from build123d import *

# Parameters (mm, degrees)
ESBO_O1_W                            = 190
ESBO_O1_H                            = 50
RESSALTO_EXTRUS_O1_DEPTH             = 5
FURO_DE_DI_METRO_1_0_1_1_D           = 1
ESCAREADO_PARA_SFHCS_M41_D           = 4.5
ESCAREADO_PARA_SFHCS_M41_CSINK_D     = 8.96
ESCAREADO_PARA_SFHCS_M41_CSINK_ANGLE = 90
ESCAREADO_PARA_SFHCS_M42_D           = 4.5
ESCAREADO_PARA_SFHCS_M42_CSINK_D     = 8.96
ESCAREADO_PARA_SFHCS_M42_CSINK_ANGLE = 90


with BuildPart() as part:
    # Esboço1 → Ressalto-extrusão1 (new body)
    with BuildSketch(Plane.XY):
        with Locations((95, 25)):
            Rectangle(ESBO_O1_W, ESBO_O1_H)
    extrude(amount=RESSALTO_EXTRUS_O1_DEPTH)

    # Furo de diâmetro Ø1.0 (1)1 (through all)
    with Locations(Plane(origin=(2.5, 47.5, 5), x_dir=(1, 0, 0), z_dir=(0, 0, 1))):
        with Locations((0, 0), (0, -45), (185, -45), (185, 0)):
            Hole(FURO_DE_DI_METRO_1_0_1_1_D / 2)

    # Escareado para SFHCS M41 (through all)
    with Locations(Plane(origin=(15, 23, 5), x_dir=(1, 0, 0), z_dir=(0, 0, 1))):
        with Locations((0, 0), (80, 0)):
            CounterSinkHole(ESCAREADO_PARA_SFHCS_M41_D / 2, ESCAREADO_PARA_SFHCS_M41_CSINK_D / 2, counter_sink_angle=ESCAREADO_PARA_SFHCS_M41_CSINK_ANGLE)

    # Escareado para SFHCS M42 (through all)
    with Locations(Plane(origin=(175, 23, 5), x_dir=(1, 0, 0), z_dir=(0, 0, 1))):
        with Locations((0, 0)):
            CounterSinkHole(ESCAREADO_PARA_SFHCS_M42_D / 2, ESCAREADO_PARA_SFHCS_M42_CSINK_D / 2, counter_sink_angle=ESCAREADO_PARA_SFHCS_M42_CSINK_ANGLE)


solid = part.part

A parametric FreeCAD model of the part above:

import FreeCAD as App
import Part
import Sketcher
from FreeCAD import Vector
Q = App.Units.Quantity

doc = App.newDocument("Part")
params = doc.addObject("Spreadsheet::Sheet", "Params")
for row, (alias, value) in enumerate([
    ("sketch1_width", "190 mm"),
    ("sketch1_height", "50 mm"),
    ("pad1_length", "5 mm"),
    ("sketch2_diameter", "1 mm"),
    ("hole_diameter", "1 mm"),
    ("sketch3_diameter", "4.5 mm"),
    ("hole2_diameter", "4.5 mm"),
    ("hole2_csink_diameter", "8.96 mm"),
    ("sketch4_diameter", "4.5 mm"),
    ("hole3_diameter", "4.5 mm"),
    ("hole3_csink_diameter", "8.96 mm"),
], start=1):
    params.set(f"A{row}", alias)
    params.set(f"B{row}", "=" + value)
    params.setAlias(f"B{row}", alias)

body = doc.addObject("PartDesign::Body", "Body")

sketch1 = body.newObject("Sketcher::SketchObject", "Sketch")
sketch1.AttachmentSupport = (doc.getObject("XY_Plane"), [""])
sketch1.MapMode = "FlatFace"
sketch1.addGeometry([
    Part.LineSegment(Vector(0, 50, 0), Vector(0, 0, 0)),
    Part.LineSegment(Vector(0, 0, 0), Vector(190, 0, 0)),
    Part.LineSegment(Vector(190, 0, 0), Vector(190, 50, 0)),
    Part.LineSegment(Vector(190, 50, 0), Vector(0, 50, 0)),
], False)
sketch1.addConstraint([
    Sketcher.Constraint("Coincident", 0, 2, 1, 1),
    Sketcher.Constraint("Coincident", 1, 2, 2, 1),
    Sketcher.Constraint("Coincident", 2, 2, 3, 1),
    Sketcher.Constraint("Coincident", 3, 2, 0, 1),
    Sketcher.Constraint("Vertical", 0),
    Sketcher.Constraint("Horizontal", 1),
    Sketcher.Constraint("Vertical", 2),
    Sketcher.Constraint("Horizontal", 3),
    Sketcher.Constraint("Coincident", 0, 2, -1, 1),
    Sketcher.Constraint("DistanceX", 1, 1, 1, 2, Q("190 mm")),
    Sketcher.Constraint("DistanceY", 0, 2, 0, 1, Q("50 mm")),
])
sketch1.setExpression("Constraints[9]", "Params.sketch1_width")
sketch1.setExpression("Constraints[10]", "Params.sketch1_height")
pad1 = body.newObject("PartDesign::Pad", "Pad")
pad1.Profile = sketch1
pad1.setExpression("Length", "Params.pad1_length")

sketch2 = body.newObject("Sketcher::SketchObject", "Sketch001")
sketch2.AttachmentSupport = (doc.getObject("XY_Plane"), [""])
sketch2.MapMode = "FlatFace"
sketch2.AttachmentOffset = App.Placement(Vector(0, 0, 5), App.Rotation())
sketch2.addGeometry([
    Part.Circle(Vector(2.5, 47.5, 0), Vector(0, 0, 1), 0.5),
    Part.Circle(Vector(2.5, 2.5, 0), Vector(0, 0, 1), 0.5),
    Part.Circle(Vector(187.5, 2.5, 0), Vector(0, 0, 1), 0.5),
    Part.Circle(Vector(187.5, 47.5, 0), Vector(0, 0, 1), 0.5),
], False)
sketch2.addConstraint([
    Sketcher.Constraint("Equal", 0, 1),
    Sketcher.Constraint("Equal", 1, 2),
    Sketcher.Constraint("Equal", 2, 3),
    Sketcher.Constraint("Horizontal", 1, 3, 2, 3),
    Sketcher.Constraint("Horizontal", 0, 3, 3, 3),
    Sketcher.Constraint("Vertical", 0, 3, 1, 3),
    Sketcher.Constraint("Vertical", 2, 3, 3, 3),
    Sketcher.Constraint("Diameter", 0, Q("1 mm")),
    Sketcher.Constraint("DistanceY", 1, 3, 0, 3, Q("45 mm")),
    Sketcher.Constraint("DistanceX", 1, 3, 2, 3, Q("185 mm")),
    Sketcher.Constraint("DistanceX", -1, 1, 0, 3, Q("2.5 mm")),
    Sketcher.Constraint("DistanceY", -1, 1, 0, 3, Q("47.5 mm")),
])
sketch2.setExpression("Constraints[7]", "Params.sketch2_diameter")
doc.recompute()
hole = body.newObject("PartDesign::Hole", "Hole")
hole.Profile = sketch2
hole.ThreadType = "None"
hole.setExpression("Diameter", "Params.hole_diameter")
hole.DepthType = "ThroughAll"

sketch3 = body.newObject("Sketcher::SketchObject", "Sketch002")
sketch3.AttachmentSupport = (doc.getObject("XY_Plane"), [""])
sketch3.MapMode = "FlatFace"
sketch3.AttachmentOffset = App.Placement(Vector(0, 0, 5), App.Rotation())
sketch3.addGeometry([
    Part.Circle(Vector(15, 23, 0), Vector(0, 0, 1), 2.25),
    Part.Circle(Vector(95, 23, 0), Vector(0, 0, 1), 2.25),
], False)
sketch3.addConstraint([
    Sketcher.Constraint("Equal", 0, 1),
    Sketcher.Constraint("Horizontal", 0, 3, 1, 3),
    Sketcher.Constraint("Diameter", 0, Q("4.5 mm")),
    Sketcher.Constraint("DistanceX", -1, 1, 0, 3, Q("15 mm")),
    Sketcher.Constraint("DistanceY", -1, 1, 0, 3, Q("23 mm")),
    Sketcher.Constraint("DistanceX", -1, 1, 1, 3, Q("95 mm")),
])
sketch3.setExpression("Constraints[2]", "Params.sketch3_diameter")
doc.recompute()
hole2 = body.newObject("PartDesign::Hole", "Hole001")
hole2.Profile = sketch3
hole2.ThreadType = "None"
hole2.setExpression("Diameter", "Params.hole2_diameter")
hole2.DepthType = "ThroughAll"
hole2.HoleCutType = "Countersink"
hole2.setExpression("HoleCutDiameter", "Params.hole2_csink_diameter")
hole2.HoleCutCountersinkAngle = 90

sketch4 = body.newObject("Sketcher::SketchObject", "Sketch003")
sketch4.AttachmentSupport = (doc.getObject("XY_Plane"), [""])
sketch4.MapMode = "FlatFace"
sketch4.AttachmentOffset = App.Placement(Vector(0, 0, 5), App.Rotation())
sketch4.addGeometry(Part.Circle(Vector(175, 23, 0), Vector(0, 0, 1), 2.25), False)
sketch4.addConstraint([
    Sketcher.Constraint("Diameter", 0, Q("4.5 mm")),
    Sketcher.Constraint("DistanceX", -1, 1, 0, 3, Q("175 mm")),
    Sketcher.Constraint("DistanceY", -1, 1, 0, 3, Q("23 mm")),
])
sketch4.setExpression("Constraints[0]", "Params.sketch4_diameter")
doc.recompute()
hole3 = body.newObject("PartDesign::Hole", "Hole002")
hole3.Profile = sketch4
hole3.ThreadType = "None"
hole3.setExpression("Diameter", "Params.hole3_diameter")
hole3.DepthType = "ThroughAll"
hole3.HoleCutType = "Countersink"
hole3.setExpression("HoleCutDiameter", "Params.hole3_csink_diameter")
hole3.HoleCutCountersinkAngle = 90

doc.recompute()
